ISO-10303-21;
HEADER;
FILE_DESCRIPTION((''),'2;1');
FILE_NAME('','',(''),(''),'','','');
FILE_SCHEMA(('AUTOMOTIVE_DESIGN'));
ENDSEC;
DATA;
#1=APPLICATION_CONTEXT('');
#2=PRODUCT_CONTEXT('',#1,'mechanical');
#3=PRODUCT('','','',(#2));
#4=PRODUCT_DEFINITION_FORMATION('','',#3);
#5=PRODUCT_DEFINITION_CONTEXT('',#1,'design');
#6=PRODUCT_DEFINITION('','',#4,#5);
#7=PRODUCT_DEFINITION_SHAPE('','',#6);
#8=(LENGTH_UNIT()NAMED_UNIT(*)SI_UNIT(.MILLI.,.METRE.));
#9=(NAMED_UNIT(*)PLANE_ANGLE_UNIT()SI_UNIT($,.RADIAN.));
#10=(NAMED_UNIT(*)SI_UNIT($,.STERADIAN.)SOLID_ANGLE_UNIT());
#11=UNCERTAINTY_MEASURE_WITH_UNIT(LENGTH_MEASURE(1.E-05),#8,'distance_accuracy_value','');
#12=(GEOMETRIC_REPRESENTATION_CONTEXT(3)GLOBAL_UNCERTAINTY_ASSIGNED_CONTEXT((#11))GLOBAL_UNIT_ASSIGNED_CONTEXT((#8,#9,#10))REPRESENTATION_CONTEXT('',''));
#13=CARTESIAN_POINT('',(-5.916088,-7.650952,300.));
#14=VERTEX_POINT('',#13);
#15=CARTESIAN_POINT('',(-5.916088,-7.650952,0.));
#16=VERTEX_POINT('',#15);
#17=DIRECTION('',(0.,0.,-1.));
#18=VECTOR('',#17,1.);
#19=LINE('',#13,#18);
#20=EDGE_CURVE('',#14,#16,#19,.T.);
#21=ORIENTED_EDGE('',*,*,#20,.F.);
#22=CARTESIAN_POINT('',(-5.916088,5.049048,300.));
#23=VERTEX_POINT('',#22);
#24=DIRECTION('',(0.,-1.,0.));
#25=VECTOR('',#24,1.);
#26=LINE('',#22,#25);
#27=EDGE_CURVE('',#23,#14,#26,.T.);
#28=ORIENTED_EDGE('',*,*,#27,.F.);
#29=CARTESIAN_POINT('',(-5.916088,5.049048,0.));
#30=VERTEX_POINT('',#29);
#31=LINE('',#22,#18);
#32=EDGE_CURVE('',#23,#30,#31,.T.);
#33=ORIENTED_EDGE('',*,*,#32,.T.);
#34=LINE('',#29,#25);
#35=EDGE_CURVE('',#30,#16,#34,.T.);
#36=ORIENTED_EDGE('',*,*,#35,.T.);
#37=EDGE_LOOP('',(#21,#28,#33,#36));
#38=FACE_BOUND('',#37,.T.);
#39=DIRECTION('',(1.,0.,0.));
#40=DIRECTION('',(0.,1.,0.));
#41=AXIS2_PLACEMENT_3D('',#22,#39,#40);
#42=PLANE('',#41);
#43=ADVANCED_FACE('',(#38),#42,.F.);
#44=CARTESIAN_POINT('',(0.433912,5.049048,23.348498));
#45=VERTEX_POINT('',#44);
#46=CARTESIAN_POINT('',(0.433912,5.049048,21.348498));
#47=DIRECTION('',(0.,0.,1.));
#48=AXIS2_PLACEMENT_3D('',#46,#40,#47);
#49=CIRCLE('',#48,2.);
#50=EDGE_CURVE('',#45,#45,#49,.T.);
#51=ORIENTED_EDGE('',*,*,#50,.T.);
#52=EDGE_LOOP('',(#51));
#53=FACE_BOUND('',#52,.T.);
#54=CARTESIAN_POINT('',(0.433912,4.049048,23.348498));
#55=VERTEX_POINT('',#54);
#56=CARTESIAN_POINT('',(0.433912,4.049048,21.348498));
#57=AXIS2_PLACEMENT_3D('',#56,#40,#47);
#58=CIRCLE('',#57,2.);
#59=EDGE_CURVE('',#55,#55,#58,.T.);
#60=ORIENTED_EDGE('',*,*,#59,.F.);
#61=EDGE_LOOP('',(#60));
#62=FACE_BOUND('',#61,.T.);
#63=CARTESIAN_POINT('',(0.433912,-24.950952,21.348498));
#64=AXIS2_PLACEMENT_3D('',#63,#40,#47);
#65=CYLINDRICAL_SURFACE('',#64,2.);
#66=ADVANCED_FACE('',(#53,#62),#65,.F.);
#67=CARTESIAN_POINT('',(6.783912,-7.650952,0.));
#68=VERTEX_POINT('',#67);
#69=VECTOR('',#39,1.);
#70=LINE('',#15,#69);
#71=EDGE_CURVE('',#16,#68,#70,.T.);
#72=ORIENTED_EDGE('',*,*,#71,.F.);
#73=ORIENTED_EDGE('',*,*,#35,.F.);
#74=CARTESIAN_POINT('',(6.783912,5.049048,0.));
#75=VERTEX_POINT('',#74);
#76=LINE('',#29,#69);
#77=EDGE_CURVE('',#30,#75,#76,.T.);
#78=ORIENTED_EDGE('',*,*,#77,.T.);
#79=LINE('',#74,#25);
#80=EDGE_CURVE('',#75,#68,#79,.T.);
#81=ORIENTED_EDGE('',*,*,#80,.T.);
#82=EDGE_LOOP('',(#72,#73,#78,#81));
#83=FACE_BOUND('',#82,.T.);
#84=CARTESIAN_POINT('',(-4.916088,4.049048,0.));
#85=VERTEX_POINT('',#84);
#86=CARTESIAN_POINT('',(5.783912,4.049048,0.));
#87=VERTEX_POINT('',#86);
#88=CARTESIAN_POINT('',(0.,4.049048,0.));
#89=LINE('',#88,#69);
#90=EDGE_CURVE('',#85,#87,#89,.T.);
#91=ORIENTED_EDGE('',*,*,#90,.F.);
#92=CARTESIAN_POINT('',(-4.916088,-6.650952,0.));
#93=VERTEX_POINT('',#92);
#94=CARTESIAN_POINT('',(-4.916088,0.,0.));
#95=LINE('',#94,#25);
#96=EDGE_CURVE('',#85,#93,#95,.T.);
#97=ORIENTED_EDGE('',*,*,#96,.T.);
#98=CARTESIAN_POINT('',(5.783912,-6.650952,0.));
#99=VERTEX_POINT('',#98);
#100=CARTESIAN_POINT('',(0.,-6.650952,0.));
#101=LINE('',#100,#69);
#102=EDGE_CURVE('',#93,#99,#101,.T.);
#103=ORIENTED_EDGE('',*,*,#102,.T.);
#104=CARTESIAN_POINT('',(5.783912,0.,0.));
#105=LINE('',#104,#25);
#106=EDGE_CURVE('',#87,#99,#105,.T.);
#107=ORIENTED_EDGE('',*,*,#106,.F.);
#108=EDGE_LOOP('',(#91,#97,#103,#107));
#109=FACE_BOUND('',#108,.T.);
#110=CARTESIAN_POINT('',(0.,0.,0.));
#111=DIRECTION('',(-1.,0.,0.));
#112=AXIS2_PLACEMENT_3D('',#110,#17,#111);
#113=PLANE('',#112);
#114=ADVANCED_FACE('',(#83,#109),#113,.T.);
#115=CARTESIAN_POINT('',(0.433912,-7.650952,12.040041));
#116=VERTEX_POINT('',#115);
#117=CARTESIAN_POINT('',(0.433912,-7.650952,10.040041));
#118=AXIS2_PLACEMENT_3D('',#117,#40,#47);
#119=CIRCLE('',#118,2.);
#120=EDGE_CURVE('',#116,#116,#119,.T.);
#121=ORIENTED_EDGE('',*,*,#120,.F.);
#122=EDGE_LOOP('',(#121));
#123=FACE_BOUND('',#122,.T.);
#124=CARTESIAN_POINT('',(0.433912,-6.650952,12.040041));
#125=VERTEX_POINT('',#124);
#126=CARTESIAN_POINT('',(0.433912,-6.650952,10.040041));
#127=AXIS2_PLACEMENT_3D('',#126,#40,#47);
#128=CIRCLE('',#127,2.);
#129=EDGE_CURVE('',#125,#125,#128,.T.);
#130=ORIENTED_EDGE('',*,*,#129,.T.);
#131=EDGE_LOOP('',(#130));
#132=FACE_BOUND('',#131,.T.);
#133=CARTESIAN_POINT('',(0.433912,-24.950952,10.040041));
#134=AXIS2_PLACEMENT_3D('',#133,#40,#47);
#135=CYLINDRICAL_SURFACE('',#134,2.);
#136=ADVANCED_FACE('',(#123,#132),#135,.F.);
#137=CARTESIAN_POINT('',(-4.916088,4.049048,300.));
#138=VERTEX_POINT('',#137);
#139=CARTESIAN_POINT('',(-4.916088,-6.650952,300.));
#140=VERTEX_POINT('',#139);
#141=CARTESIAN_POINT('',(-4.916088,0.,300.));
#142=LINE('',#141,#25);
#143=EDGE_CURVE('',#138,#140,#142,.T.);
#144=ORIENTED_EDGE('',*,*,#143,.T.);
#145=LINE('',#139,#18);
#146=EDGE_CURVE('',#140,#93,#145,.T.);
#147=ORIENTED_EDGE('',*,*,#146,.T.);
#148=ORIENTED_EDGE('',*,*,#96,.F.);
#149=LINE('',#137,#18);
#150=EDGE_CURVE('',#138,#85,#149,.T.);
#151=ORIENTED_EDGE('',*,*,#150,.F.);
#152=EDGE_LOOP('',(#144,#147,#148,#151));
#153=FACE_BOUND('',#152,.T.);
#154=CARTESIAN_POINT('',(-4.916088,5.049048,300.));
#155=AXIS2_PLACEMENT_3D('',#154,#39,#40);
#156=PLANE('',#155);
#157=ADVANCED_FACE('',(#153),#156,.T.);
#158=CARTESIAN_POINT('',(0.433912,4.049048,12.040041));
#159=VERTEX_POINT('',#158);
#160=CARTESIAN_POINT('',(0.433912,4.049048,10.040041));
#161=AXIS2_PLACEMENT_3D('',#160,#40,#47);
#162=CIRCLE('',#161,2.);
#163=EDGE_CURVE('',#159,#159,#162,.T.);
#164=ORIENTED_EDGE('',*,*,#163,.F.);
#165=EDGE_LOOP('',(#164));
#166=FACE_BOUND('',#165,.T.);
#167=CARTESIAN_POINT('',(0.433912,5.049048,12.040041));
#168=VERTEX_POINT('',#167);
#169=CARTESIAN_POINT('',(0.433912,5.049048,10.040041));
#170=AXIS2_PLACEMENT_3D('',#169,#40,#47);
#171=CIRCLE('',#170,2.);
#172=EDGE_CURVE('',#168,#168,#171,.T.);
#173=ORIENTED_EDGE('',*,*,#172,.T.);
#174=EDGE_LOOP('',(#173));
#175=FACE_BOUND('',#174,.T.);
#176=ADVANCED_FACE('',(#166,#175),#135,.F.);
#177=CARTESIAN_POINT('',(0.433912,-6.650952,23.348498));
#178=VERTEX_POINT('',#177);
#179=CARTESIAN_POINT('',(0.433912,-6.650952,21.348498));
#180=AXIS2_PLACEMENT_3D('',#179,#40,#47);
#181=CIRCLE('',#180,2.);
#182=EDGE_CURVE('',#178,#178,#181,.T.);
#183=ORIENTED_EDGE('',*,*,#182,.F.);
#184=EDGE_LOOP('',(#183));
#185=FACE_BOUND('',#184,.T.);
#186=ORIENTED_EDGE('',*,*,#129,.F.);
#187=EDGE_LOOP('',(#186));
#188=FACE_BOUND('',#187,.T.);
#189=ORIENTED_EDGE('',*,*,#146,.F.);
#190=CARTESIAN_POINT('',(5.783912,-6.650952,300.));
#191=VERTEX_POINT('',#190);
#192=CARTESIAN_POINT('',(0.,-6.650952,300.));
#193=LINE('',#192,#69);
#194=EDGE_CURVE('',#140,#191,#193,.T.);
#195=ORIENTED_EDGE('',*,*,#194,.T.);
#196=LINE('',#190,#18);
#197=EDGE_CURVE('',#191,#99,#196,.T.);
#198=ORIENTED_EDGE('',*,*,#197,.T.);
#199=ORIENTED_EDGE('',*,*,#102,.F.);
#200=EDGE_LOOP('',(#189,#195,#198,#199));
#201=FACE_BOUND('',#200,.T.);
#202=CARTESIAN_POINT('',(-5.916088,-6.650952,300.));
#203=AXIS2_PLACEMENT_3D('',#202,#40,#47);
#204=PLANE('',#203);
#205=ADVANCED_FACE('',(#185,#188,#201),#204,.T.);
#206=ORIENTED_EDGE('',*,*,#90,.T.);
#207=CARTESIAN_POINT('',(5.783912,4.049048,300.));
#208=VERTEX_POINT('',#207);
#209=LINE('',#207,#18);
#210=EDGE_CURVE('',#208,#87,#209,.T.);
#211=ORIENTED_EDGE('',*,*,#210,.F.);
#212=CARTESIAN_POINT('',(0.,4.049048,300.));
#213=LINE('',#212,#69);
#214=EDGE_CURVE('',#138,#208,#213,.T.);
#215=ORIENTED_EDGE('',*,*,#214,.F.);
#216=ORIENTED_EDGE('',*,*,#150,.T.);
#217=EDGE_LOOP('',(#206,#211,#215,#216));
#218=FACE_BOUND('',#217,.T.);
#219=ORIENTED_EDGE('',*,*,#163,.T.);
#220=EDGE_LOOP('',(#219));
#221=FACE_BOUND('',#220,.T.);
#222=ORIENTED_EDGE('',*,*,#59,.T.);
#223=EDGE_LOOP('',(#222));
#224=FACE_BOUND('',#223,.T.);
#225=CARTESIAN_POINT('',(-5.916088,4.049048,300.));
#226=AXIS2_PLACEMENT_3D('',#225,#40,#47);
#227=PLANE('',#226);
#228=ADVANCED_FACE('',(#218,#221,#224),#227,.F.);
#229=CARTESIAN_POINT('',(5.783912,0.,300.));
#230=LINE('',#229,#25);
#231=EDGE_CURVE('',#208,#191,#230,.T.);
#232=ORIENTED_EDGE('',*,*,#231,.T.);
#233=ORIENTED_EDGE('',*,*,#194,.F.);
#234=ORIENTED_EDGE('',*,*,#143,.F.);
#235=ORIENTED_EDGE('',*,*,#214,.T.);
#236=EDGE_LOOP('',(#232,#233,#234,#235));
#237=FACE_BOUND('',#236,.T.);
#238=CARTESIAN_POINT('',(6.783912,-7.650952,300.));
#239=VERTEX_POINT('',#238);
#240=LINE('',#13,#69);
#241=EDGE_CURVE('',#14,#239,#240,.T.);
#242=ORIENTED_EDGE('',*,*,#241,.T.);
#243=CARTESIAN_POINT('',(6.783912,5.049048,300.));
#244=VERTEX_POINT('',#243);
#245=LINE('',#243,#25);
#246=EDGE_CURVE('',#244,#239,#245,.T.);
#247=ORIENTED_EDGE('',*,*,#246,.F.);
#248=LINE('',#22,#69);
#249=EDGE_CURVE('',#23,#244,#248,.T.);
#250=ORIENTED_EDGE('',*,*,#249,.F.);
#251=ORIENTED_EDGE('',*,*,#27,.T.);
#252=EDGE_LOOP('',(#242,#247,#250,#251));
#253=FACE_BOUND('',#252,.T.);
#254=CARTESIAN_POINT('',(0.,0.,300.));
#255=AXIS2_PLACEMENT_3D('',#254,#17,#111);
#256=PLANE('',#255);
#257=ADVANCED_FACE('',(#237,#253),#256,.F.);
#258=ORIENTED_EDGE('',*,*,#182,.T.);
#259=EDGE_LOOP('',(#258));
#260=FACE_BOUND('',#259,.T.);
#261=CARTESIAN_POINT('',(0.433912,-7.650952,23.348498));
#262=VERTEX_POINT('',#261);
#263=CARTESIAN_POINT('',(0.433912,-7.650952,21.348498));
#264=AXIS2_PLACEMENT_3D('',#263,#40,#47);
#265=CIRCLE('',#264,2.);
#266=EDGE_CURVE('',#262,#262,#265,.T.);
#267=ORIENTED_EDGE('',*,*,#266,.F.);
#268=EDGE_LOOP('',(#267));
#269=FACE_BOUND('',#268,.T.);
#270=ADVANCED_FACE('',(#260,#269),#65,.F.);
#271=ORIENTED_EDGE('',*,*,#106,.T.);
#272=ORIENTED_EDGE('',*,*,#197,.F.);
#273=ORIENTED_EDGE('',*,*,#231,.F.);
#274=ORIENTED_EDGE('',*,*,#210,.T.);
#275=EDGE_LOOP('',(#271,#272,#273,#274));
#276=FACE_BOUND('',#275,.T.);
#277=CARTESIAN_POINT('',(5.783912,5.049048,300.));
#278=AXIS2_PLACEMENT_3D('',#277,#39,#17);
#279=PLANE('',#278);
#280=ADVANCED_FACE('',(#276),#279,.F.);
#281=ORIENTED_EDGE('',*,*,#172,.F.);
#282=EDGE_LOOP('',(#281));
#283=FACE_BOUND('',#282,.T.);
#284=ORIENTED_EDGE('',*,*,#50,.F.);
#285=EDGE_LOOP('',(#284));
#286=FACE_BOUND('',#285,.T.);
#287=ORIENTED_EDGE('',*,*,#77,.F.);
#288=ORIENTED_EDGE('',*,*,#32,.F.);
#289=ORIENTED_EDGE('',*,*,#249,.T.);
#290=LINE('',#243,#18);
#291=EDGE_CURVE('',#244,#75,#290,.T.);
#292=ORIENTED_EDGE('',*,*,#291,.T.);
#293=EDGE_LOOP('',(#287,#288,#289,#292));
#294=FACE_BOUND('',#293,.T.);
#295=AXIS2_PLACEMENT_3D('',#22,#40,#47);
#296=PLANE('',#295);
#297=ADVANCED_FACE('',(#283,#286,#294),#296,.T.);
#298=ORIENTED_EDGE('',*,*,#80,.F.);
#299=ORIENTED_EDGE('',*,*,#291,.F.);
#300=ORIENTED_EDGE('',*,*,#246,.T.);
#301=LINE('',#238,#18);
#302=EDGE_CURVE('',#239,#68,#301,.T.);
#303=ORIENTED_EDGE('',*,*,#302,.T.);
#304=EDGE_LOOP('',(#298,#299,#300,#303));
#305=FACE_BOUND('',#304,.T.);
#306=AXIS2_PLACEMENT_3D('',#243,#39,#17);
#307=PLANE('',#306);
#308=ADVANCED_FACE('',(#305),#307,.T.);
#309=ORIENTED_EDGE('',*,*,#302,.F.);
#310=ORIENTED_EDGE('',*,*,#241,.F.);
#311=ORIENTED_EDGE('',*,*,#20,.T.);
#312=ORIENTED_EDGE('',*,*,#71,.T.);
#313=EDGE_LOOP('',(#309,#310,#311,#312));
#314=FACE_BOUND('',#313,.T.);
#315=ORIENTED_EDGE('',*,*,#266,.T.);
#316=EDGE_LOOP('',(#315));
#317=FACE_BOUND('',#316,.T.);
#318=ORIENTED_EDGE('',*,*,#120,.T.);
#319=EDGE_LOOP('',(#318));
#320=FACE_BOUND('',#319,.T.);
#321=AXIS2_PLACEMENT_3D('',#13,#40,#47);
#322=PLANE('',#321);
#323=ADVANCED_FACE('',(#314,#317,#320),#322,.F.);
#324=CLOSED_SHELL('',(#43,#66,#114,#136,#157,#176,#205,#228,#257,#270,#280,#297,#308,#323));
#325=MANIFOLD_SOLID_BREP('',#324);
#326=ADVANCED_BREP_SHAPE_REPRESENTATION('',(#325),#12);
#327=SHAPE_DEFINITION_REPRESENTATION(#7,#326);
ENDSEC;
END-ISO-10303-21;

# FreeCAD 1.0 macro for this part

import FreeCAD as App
import Part
import Sketcher

V = App.Vector
Q = App.Units.Quantity


def faces_at(feature, points):
    """Names of the faces that lie closest to the given points."""
    faces = feature.Shape.Faces
    near = lambda p: min(range(len(faces)), key=lambda i: faces[i].distToShape(Part.Vertex(*p))[0])
    return sorted({f"Face{near(p) + 1}" for p in points})

doc = App.newDocument("Part")
params = doc.addObject("Spreadsheet::Sheet", "Params")
for row, (alias, value) in enumerate([
    ("sketch1_width", "12.7 mm"),
    ("pad1_length", "300 mm"),
    ("thickness_wall", "1 mm"),
    ("sketch2_diameter", "4 mm"),
    ("pocket1_length", "30 mm"),
    ("sketch3_diameter", "4 mm"),
    ("pocket2_length", "20 mm"),
], start=1):
    params.set(f"A{row}", alias)
    params.set(f"B{row}", "=" + value)
    params.setAlias(f"B{row}", alias)

body = doc.addObject("PartDesign::Body", "Body")

# Sketch on XY plane
sketch1 = body.newObject("Sketcher::SketchObject", "Sketch")
sketch1.AttachmentSupport = (doc.getObject("XY_Plane"), [""])
sketch1.MapMode = "FlatFace"
sketch1.addGeometry([
    Part.LineSegment(V(-6, 5, 0), V(-6, -8, 0)),
    Part.LineSegment(V(-6, -8, 0), V(7, -8, 0)),
    Part.LineSegment(V(7, -8, 0), V(7, 5, 0)),
    Part.LineSegment(V(7, 5, 0), V(-6, 5, 0)),
], False)
sketch1.addConstraint([
    Sketcher.Constraint("Coincident", 0, 2, 1, 1),
    Sketcher.Constraint("Coincident", 1, 2, 2, 1),
    Sketcher.Constraint("Coincident", 2, 2, 3, 1),
    Sketcher.Constraint("Coincident", 3, 2, 0, 1),
    Sketcher.Constraint("Vertical", 0),
    Sketcher.Constraint("Horizontal", 1),
    Sketcher.Constraint("Vertical", 2),
    Sketcher.Constraint("Horizontal", 3),
    Sketcher.Constraint("Equal", 3, 0),
    Sketcher.Constraint("DistanceX", 1, 1, 1, 2, Q("12.7 mm")),
    Sketcher.Constraint("DistanceX", 0, 2, -1, 1, Q("5.916088 mm")),
    Sketcher.Constraint("DistanceY", 0, 2, -1, 1, Q("7.650952 mm")),
])
sketch1.setExpression("Constraints[9]", "Params.sketch1_width")
pad1 = body.newObject("PartDesign::Pad", "Pad")
pad1.Profile = sketch1
pad1.setExpression("Length", "Params.pad1_length")
doc.recompute()

thickness = body.newObject("PartDesign::Thickness", "Thickness")
thickness.Base = (pad1, faces_at(pad1, [(0.434, -1.301, 300), (0.434, -1.301, 0)]))
thickness.setExpression("Value", "Params.thickness_wall")
thickness.Reversed = True
thickness.Join = "Intersection"

# Sketch on XZ plane
sketch2 = body.newObject("Sketcher::SketchObject", "Sketch001")
sketch2.AttachmentSupport = (doc.getObject("XZ_Plane"), [""])
sketch2.MapMode = "FlatFace"
sketch2.AttachmentOffset = App.Placement(V(0, 0, -5.049048), App.Rotation())
sketch2.addGeometry([
    Part.Circle(V(0.4, 10, 0), V(0, 0, 1), 2),
    Part.Circle(V(0.4, 21.3, 0), V(0, 0, 1), 2),
], False)
sketch2.addConstraint([
    Sketcher.Constraint("Equal", 0, 1),
    Sketcher.Constraint("Vertical", 0, 3, 1, 3),
    Sketcher.Constraint("Diameter", 0, Q("4 mm")),
    Sketcher.Constraint("DistanceY", -1, 1, 1, 3, Q("21.348498 mm")),
    Sketcher.Constraint("DistanceX", -1, 1, 0, 3, Q("0.433912 mm")),
    Sketcher.Constraint("DistanceY", -1, 1, 0, 3, Q("10.040041 mm")),
])
sketch2.setExpression("Constraints[2]", "Params.sketch2_diameter")
pocket1 = body.newObject("PartDesign::Pocket", "Pocket")
pocket1.Profile = sketch2
pocket1.setExpression("Length", "Params.pocket1_length")
pocket1.Reversed = True

# Sketch on XZ plane
sketch3 = body.newObject("Sketcher::SketchObject", "Sketch002")
sketch3.AttachmentSupport = (doc.getObject("XZ_Plane"), [""])
sketch3.MapMode = "FlatFace"
sketch3.AttachmentOffset = App.Placement(V(0, 0, -5.049048), App.Rotation())
sketch3.addGeometry([
    Part.Circle(V(0.4, 336, 0), V(0, 0, 1), 2),
    Part.Circle(V(0.4, 316, 0), V(0, 0, 1), 2),
], False)
sketch3.addConstraint([
    Sketcher.Constraint("Equal", 0, 1),
    Sketcher.Constraint("Vertical", 0, 3, 1, 3),
    Sketcher.Constraint("Diameter", 0, Q("4 mm")),
    Sketcher.Constraint("DistanceY", -1, 1, 0, 3, Q("336 mm")),
    Sketcher.Constraint("DistanceY", -1, 1, 1, 3, Q("316 mm")),
    Sketcher.Constraint("DistanceX", -1, 1, 0, 3, Q("0.433912 mm")),
])
sketch3.setExpression("Constraints[2]", "Params.sketch3_diameter")
pocket2 = body.newObject("PartDesign::Pocket", "Pocket001")
pocket2.Profile = sketch3
pocket2.setExpression("Length", "Params.pocket2_length")
pocket2.Reversed = True

doc.recompute()
